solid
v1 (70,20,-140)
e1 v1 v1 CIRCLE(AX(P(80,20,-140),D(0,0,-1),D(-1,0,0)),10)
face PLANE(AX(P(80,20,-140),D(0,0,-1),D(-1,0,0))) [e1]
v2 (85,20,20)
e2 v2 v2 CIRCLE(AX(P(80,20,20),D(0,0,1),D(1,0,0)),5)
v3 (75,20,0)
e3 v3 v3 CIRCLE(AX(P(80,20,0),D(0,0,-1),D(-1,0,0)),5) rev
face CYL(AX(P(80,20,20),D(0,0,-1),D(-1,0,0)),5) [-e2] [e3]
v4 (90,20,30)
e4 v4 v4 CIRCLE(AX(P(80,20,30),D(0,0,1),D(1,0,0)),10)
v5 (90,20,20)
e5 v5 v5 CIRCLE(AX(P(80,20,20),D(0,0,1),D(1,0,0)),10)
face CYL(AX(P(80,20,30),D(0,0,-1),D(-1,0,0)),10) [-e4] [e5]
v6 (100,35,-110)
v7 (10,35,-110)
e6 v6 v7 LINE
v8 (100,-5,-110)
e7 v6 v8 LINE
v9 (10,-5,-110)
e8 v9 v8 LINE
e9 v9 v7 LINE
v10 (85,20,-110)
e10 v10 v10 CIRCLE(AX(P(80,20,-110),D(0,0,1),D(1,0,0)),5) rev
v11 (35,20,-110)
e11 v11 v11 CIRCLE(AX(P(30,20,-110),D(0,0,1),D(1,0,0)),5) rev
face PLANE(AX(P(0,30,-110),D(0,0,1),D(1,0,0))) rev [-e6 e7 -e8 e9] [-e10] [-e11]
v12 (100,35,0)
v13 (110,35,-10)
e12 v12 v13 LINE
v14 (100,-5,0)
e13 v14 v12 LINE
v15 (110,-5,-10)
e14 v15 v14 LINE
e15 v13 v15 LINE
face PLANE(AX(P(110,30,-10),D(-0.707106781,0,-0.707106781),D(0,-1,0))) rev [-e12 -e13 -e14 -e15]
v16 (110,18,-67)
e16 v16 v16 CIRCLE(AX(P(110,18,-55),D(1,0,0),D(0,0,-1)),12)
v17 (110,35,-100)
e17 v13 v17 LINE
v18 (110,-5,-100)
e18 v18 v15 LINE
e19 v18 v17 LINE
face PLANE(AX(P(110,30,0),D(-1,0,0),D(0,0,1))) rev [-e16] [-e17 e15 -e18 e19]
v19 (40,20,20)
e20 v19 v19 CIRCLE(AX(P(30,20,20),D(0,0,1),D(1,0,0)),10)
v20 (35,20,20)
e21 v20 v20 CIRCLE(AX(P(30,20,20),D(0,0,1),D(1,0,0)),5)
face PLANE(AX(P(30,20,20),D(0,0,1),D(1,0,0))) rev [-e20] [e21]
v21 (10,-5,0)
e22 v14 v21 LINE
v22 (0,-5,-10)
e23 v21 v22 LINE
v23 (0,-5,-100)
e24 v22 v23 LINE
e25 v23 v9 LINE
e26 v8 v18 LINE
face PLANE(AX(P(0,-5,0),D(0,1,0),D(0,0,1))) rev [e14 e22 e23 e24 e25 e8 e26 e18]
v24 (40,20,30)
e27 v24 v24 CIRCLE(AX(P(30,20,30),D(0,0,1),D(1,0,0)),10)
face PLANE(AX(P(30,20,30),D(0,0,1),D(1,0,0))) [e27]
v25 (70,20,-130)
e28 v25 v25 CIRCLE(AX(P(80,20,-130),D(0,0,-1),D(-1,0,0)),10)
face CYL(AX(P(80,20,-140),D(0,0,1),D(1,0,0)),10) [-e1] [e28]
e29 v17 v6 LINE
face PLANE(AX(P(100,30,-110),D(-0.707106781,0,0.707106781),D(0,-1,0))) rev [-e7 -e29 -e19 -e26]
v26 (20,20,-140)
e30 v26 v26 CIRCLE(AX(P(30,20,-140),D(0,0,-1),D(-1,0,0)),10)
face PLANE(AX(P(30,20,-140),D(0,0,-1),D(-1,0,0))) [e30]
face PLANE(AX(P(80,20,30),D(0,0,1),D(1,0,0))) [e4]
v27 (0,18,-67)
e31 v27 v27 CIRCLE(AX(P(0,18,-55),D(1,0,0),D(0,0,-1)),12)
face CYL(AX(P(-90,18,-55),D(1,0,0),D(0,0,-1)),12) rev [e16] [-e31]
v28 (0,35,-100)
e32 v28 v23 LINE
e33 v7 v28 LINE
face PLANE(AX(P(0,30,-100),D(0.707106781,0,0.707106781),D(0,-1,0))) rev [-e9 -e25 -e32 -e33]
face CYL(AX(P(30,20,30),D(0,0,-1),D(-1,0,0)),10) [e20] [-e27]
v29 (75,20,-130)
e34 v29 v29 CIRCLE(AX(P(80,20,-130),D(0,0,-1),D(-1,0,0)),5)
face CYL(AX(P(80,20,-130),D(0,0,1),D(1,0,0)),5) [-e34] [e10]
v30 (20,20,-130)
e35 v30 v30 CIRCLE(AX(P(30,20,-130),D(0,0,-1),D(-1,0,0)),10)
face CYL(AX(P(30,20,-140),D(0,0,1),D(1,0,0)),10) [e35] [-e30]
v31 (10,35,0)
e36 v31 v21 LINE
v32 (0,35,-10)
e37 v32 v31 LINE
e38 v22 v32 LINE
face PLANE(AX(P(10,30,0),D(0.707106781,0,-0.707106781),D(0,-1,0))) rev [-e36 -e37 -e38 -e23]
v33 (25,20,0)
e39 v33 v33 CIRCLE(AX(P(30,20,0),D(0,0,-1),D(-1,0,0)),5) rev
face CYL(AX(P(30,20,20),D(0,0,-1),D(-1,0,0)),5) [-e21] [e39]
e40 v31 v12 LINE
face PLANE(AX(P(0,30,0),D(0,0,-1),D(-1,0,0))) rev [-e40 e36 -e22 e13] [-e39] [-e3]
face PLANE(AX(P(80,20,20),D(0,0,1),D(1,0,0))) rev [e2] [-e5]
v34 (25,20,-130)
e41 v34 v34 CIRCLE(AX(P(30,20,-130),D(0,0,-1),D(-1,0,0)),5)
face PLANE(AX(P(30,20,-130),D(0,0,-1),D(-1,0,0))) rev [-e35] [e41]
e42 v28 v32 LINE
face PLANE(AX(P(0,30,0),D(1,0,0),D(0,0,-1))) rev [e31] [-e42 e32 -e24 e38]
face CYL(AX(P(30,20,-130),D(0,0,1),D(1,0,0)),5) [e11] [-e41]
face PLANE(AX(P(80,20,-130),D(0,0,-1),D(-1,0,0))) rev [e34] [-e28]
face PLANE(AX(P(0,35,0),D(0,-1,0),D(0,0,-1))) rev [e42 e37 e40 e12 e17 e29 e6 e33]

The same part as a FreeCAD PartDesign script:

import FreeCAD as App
import Part
import Sketcher
from FreeCAD import Vector


def edges_at(feature, points):
    """Names of the edges that pass closest to the given points."""
    edges = feature.Shape.Edges
    near = lambda p: min(range(len(edges)), key=lambda i: edges[i].distToShape(Part.Vertex(*p))[0])
    return sorted({f"Edge{near(p) + 1}" for p in points})

doc = App.newDocument("Part")
body = doc.addObject("PartDesign::Body", "Body")

sketch1 = body.newObject("Sketcher::SketchObject", "Sketch")
sketch1.AttachmentSupport = (doc.getObject("XZ_Plane"), [""])
sketch1.MapMode = "FlatFace"
sketch1.addGeometry([
    Part.LineSegment(Vector(0, -110, 0), Vector(0, 0, 0)),
    Part.LineSegment(Vector(0, 0, 0), Vector(110, 0, 0)),
    Part.LineSegment(Vector(110, 0, 0), Vector(110, -110, 0)),
    Part.LineSegment(Vector(110, -110, 0), Vector(0, -110, 0)),
], False)
sketch1.addConstraint([
    Sketcher.Constraint("Coincident", 0, 2, 1, 1),
    Sketcher.Constraint("Coincident", 1, 2, 2, 1),
    Sketcher.Constraint("Coincident", 2, 2, 3, 1),
    Sketcher.Constraint("Coincident", 3, 2, 0, 1),
    Sketcher.Constraint("Vertical", 0),
    Sketcher.Constraint("Horizontal", 1),
    Sketcher.Constraint("Vertical", 2),
    Sketcher.Constraint("Horizontal", 3),
    Sketcher.Constraint("Coincident", 0, 2, -1, 1),
    Sketcher.Constraint("Equal", 3, 0),
    Sketcher.Constraint("DistanceX", 1, 1, 1, 2, 110.0),
])
pad1 = body.newObject("PartDesign::Pad", "Pad")
pad1.Profile = sketch1
pad1.Length = 30
pad1.Reversed = True
doc.recompute()

chamfer = body.newObject("PartDesign::Chamfer", "Chamfer")
chamfer.Base = (pad1, edges_at(pad1, [
    (0, 15, -110),
    (110, 15, -110),
    (110, 15, 0),
    (0, 15, 0),
]))
chamfer.Size = 10

sketch2 = body.newObject("Sketcher::SketchObject", "Sketch001")
sketch2.AttachmentSupport = (doc.getObject("XY_Plane"), [""])
sketch2.MapMode = "FlatFace"
sketch2.addGeometry([
    Part.Circle(Vector(30, 20, 0), Vector(0, 0, 1), 5),
    Part.Circle(Vector(80, 20, 0), Vector(0, 0, 1), 5),
], False)
sketch2.addConstraint([
    Sketcher.Constraint("Equal", 0, 1),
    Sketcher.Constraint("Horizontal", 0, 3, 1, 3),
    Sketcher.Constraint("Diameter", 0, 10.0),
    Sketcher.Constraint("DistanceX", -1, 1, 0, 3, 30.0),
    Sketcher.Constraint("DistanceY", -1, 1, 0, 3, 20.0),
    Sketcher.Constraint("DistanceX", -1, 1, 1, 3, 80.0),
])
pad2 = body.newObject("PartDesign::Pad", "Pad001")
pad2.Profile = sketch2
pad2.Length = 20

sketch3 = body.newObject("Sketcher::SketchObject", "Sketch002")
sketch3.AttachmentSupport = (doc.getObject("XY_Plane"), [""])
sketch3.MapMode = "FlatFace"
sketch3.AttachmentOffset = App.Placement(Vector(0, 0, -130), App.Rotation())
sketch3.addGeometry([
    Part.Circle(Vector(80, 20, 0), Vector(0, 0, 1), 5),
    Part.Circle(Vector(30, 20, 0), Vector(0, 0, 1), 5),
], False)
sketch3.addConstraint([
    Sketcher.Constraint("Equal", 0, 1),
    Sketcher.Constraint("Horizontal", 0, 3, 1, 3),
    Sketcher.Constraint("Diameter", 0, 10.0),
    Sketcher.Constraint("DistanceX", -1, 1, 0, 3, 80.0),
    Sketcher.Constraint("DistanceY", -1, 1, 0, 3, 20.0),
    Sketcher.Constraint("DistanceX", -1, 1, 1, 3, 30.0),
])
pad3 = body.newObject("PartDesign::Pad", "Pad002")
pad3.Profile = sketch3
pad3.Length = 20

sketch4 = body.newObject("Sketcher::SketchObject", "Sketch003")
sketch4.AttachmentSupport = (doc.getObject("XY_Plane"), [""])
sketch4.MapMode = "FlatFace"
sketch4.AttachmentOffset = App.Placement(Vector(0, 0, -130), App.Rotation())
sketch4.addGeometry([
    Part.Circle(Vector(80, 20, 0), Vector(0, 0, 1), 10),
    Part.Circle(Vector(30, 20, 0), Vector(0, 0, 1), 10),
], False)
sketch4.addConstraint([
    Sketcher.Constraint("Equal", 0, 1),
    Sketcher.Constraint("Horizontal", 0, 3, 1, 3),
    Sketcher.Constraint("Diameter", 0, 20.0),
    Sketcher.Constraint("DistanceX", -1, 1, 0, 3, 80.0),
    Sketcher.Constraint("DistanceY", -1, 1, 0, 3, 20.0),
    Sketcher.Constraint("DistanceX", -1, 1, 1, 3, 30.0),
])
pad4 = body.newObject("PartDesign::Pad", "Pad003")
pad4.Profile = sketch4
pad4.Length = 10
pad4.Reversed = True

sketch5 = body.newObject("Sketcher::SketchObject", "Sketch004")
sketch5.AttachmentSupport = (doc.getObject("XY_Plane"), [""])
sketch5.MapMode = "FlatFace"
sketch5.AttachmentOffset = App.Placement(Vector(0, 0, 30), App.Rotation())
sketch5.addGeometry([
    Part.Circle(Vector(30, 20, 0), Vector(0, 0, 1), 10),
    Part.Circle(Vector(80, 20, 0), Vector(0, 0, 1), 10),
], False)
sketch5.addConstraint([
    Sketcher.Constraint("Equal", 0, 1),
    Sketcher.Constraint("Horizontal", 0, 3, 1, 3),
    Sketcher.Constraint("Diameter", 0, 20.0),
    Sketcher.Constraint("DistanceX", -1, 1, 0, 3, 30.0),
    Sketcher.Constraint("DistanceY", -1, 1, 0, 3, 20.0),
    Sketcher.Constraint("DistanceX", -1, 1, 1, 3, 80.0),
])
pad5 = body.newObject("PartDesign::Pad", "Pad004")
pad5.Profile = sketch5
pad5.Length = 10
pad5.Reversed = True

sketch6 = body.newObject("Sketcher::SketchObject", "Sketch005")
sketch6.AttachmentSupport = (doc.getObject("XZ_Plane"), [""])
sketch6.MapMode = "FlatFace"
sketch6.AttachmentOffset = App.Placement(Vector(0, 0, -30), App.Rotation())
sketch6.addGeometry([
    Part.LineSegment(Vector(100, -110, 0), Vector(10, -110, 0)),
    Part.LineSegment(Vector(10, -110, 0), Vector(0, -100, 0)),
    Part.LineSegment(Vector(0, -100, 0), Vector(0, -10, 0)),
    Part.LineSegment(Vector(0, -10, 0), Vector(10, 0, 0)),
    Part.LineSegment(Vector(10, 0, 0), Vector(100, 0, 0)),
    Part.LineSegment(Vector(100, 0, 0), Vector(110, -10, 0)),
    Part.LineSegment(Vector(110, -10, 0), Vector(110, -100, 0)),
    Part.LineSegment(Vector(110, -100, 0), Vector(100, -110, 0)),
], False)
sketch6.addConstraint([
    Sketcher.Constraint("Coincident", 0, 2, 1, 1),
    Sketcher.Constraint("Coincident", 1, 2, 2, 1),
    Sketcher.Constraint("Coincident", 2, 2, 3, 1),
    Sketcher.Constraint("Coincident", 3, 2, 4, 1),
    Sketcher.Constraint("Coincident", 4, 2, 5, 1),
    Sketcher.Constraint("Coincident", 5, 2, 6, 1),
    Sketcher.Constraint("Coincident", 6, 2, 7, 1),
    Sketcher.Constraint("Coincident", 7, 2, 0, 1),
    Sketcher.Constraint("Horizontal", 0),
    Sketcher.Constraint("Vertical", 2),
    Sketcher.Constraint("Horizontal", 4),
    Sketcher.Constraint("Vertical", 6),
    Sketcher.Constraint("PointOnObject", 1, 2, -2),
    Sketcher.Constraint("PointOnObject", 3, 2, -1),
    Sketcher.Constraint("Perpendicular", 1, 3),
    Sketcher.Constraint("Perpendicular", 3, 5),
    Sketcher.Constraint("Perpendicular", 5, 7),
    Sketcher.Constraint("Horizontal", 2, 2, 5, 2),
    Sketcher.Constraint("Horizontal", 1, 2, 6, 2),
    Sketcher.Constraint("Vertical", 0, 2, 3, 2),
    Sketcher.Constraint("Vertical", 4, 2, 7, 2),
    Sketcher.Constraint("Equal", 4, 2),
    Sketcher.Constraint("DistanceX", 0, 2, 0, 1, 90.0),
    Sketcher.Constraint("DistanceX", -1, 1, 0, 2, 10.0),
])
pad6 = body.newObject("PartDesign::Pad", "Pad005")
pad6.Profile = sketch6
pad6.Length = 5
pad6.Reversed = True

sketch7 = body.newObject("Sketcher::SketchObject", "Sketch006")
sketch7.AttachmentSupport = (doc.getObject("XZ_Plane"), [""])
sketch7.MapMode = "FlatFace"
sketch7.addGeometry([
    Part.LineSegment(Vector(100, 0, 0), Vector(10, 0, 0)),
    Part.LineSegment(Vector(10, 0, 0), Vector(0, -10, 0)),
    Part.LineSegment(Vector(0, -10, 0), Vector(0, -100, 0)),
    Part.LineSegment(Vector(0, -100, 0), Vector(10, -110, 0)),
    Part.LineSegment(Vector(10, -110, 0), Vector(100, -110, 0)),
    Part.LineSegment(Vector(100, -110, 0), Vector(110, -100, 0)),
    Part.LineSegment(Vector(110, -100, 0), Vector(110, -10, 0)),
    Part.LineSegment(Vector(110, -10, 0), Vector(100, 0, 0)),
], False)
sketch7.addConstraint([
    Sketcher.Constraint("Coincident", 0, 2, 1, 1),
    Sketcher.Constraint("Coincident", 1, 2, 2, 1),
    Sketcher.Constraint("Coincident", 2, 2, 3, 1),
    Sketcher.Constraint("Coincident", 3, 2, 4, 1),
    Sketcher.Constraint("Coincident", 4, 2, 5, 1),
    Sketcher.Constraint("Coincident", 5, 2, 6, 1),
    Sketcher.Constraint("Coincident", 6, 2, 7, 1),
    Sketcher.Constraint("Coincident", 7, 2, 0, 1),
    Sketcher.Constraint("Horizontal", 0),
    Sketcher.Constraint("Vertical", 2),
    Sketcher.Constraint("Horizontal", 4),
    Sketcher.Constraint("Vertical", 6),
    Sketcher.Constraint("PointOnObject", 0, 2, -1),
    Sketcher.Constraint("PointOnObject", 1, 2, -2),
    Sketcher.Constraint("Perpendicular", 1, 3),
    Sketcher.Constraint("Perpendicular", 3, 5),
    Sketcher.Constraint("Perpendicular", 5, 7),
    Sketcher.Constraint("Horizontal", 2, 2, 5, 2),
    Sketcher.Constraint("Horizontal", 1, 2, 6, 2),
    Sketcher.Constraint("Vertical", 0, 2, 3, 2),
    Sketcher.Constraint("Vertical", 4, 2, 7, 2),
    Sketcher.Constraint("Equal", 4, 2),
    Sketcher.Constraint("DistanceX", 0, 2, 0, 1, 90.0),
    Sketcher.Constraint("DistanceX", -1, 1, 0, 2, 10.0),
])
pad7 = body.newObject("PartDesign::Pad", "Pad006")
pad7.Profile = sketch7
pad7.Length = 5

sketch8 = body.newObject("Sketcher::SketchObject", "Sketch007")
sketch8.AttachmentSupport = (doc.getObject("YZ_Plane"), [""])
sketch8.MapMode = "FlatFace"
sketch8.AttachmentOffset = App.Placement(Vector(0, 0, 110), App.Rotation())
sketch8.addGeometry(Part.Circle(Vector(18, -55, 0), Vector(0, 0, 1), 12), False)
sketch8.addConstraint([
    Sketcher.Constraint("Diameter", 0, 24.0),
    Sketcher.Constraint("DistanceX", -1, 1, 0, 3, 18.0),
    Sketcher.Constraint("DistanceY", 0, 3, -1, 1, 55.0),
])
pocket1 = body.newObject("PartDesign::Pocket", "Pocket")
pocket1.Profile = sketch8
pocket1.Length = 200

doc.recompute()
